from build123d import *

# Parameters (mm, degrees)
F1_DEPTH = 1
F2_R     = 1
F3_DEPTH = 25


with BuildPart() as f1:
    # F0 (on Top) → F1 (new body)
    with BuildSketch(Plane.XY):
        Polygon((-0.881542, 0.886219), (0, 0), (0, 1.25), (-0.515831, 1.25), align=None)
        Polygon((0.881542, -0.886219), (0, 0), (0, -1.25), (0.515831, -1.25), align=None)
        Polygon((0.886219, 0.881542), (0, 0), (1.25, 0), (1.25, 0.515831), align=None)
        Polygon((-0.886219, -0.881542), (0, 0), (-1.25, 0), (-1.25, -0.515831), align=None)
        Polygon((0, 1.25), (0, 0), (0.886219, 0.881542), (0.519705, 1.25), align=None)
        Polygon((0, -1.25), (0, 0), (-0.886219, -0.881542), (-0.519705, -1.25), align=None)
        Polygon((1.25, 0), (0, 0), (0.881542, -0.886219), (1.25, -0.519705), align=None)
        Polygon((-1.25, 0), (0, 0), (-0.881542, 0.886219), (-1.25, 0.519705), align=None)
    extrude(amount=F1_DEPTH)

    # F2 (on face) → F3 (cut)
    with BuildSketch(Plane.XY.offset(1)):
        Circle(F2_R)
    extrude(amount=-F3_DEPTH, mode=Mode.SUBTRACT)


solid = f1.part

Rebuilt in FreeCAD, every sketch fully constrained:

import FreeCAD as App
import Part
import Sketcher
from FreeCAD import Vector
Q = App.Units.Quantity

doc = App.newDocument("Part")
body = doc.addObject("PartDesign::Body", "Body")

sketch1 = body.newObject("Sketcher::SketchObject", "Sketch")
sketch1.AttachmentSupport = (doc.getObject("XY_Plane"), [""])
sketch1.MapMode = "FlatFace"
sketch1.addGeometry([
    Part.LineSegment(Vector(-1.2, -0.5, 0), Vector(-0.9, -0.9, 0)),
    Part.LineSegment(Vector(-0.9, -0.9, 0), Vector(-0.5, -1.2, 0)),
    Part.LineSegment(Vector(-0.5, -1.2, 0), Vector(0.5, -1.2, 0)),
    Part.LineSegment(Vector(0.5, -1.2, 0), Vector(0.9, -0.9, 0)),
    Part.LineSegment(Vector(0.9, -0.9, 0), Vector(1.2, -0.5, 0)),
    Part.LineSegment(Vector(1.2, -0.5, 0), Vector(1.2, 0.5, 0)),
    Part.LineSegment(Vector(1.2, 0.5, 0), Vector(0.9, 0.9, 0)),
    Part.LineSegment(Vector(0.9, 0.9, 0), Vector(0.5, 1.2, 0)),
    Part.LineSegment(Vector(0.5, 1.2, 0), Vector(-0.5, 1.2, 0)),
    Part.LineSegment(Vector(-0.5, 1.2, 0), Vector(-0.9, 0.9, 0)),
    Part.LineSegment(Vector(-0.9, 0.9, 0), Vector(-1.2, 0.5, 0)),
    Part.LineSegment(Vector(-1.2, 0.5, 0), Vector(-1.2, -0.5, 0)),
], False)
sketch1.addConstraint([
    Sketcher.Constraint("Coincident", 0, 2, 1, 1),
    Sketcher.Constraint("Coincident", 1, 2, 2, 1),
    Sketcher.Constraint("Coincident", 2, 2, 3, 1),
    Sketcher.Constraint("Coincident", 3, 2, 4, 1),
    Sketcher.Constraint("Coincident", 4, 2, 5, 1),
    Sketcher.Constraint("Coincident", 5, 2, 6, 1),
    Sketcher.Constraint("Coincident", 6, 2, 7, 1),
    Sketcher.Constraint("Coincident", 7, 2, 8, 1),
    Sketcher.Constraint("Coincident", 8, 2, 9, 1),
    Sketcher.Constraint("Coincident", 9, 2, 10, 1),
    Sketcher.Constraint("Coincident", 10, 2, 11, 1),
    Sketcher.Constraint("Coincident", 11, 2, 0, 1),
    Sketcher.Constraint("Horizontal", 2),
    Sketcher.Constraint("Vertical", 5),
    Sketcher.Constraint("Horizontal", 8),
    Sketcher.Constraint("Vertical", 11),
    Sketcher.Constraint("Symmetric", 0, 2, 6, 2, -1, 1),
    Sketcher.Constraint("Symmetric", 1, 2, 7, 2, -1, 1),
    Sketcher.Constraint("Symmetric", 3, 2, 9, 2, -1, 1),
    Sketcher.Constraint("Symmetric", 4, 2, 10, 2, -1, 1),
    Sketcher.Constraint("Parallel", 0, 1),
    Sketcher.Constraint("Perpendicular", 1, 3),
    Sketcher.Constraint("Parallel", 3, 4),
    Sketcher.Constraint("Perpendicular", 4, 6),
    Sketcher.Constraint("Perpendicular", 7, 9),
    Sketcher.Constraint("Equal", 8, 5),
    Sketcher.Constraint("Equal", 0, 3),
    Sketcher.Constraint("Equal", 1, 4),
    Sketcher.Constraint("DistanceY", 2, 2, 7, 2, Q("2.5 mm")),
    Sketcher.Constraint("Distance", 0, Q("0.515831 mm")),
    Sketcher.Constraint("DistanceX", 2, 1, 2, 2, Q("1.035536 mm")),
    Sketcher.Constraint("DistanceX", 0, 2, -1, 1, Q("0.886219 mm")),
])
pad1 = body.newObject("PartDesign::Pad", "Pad")
pad1.Profile = sketch1
pad1.Length = 1

sketch2 = body.newObject("Sketcher::SketchObject", "Sketch001")
sketch2.AttachmentSupport = (doc.getObject("XY_Plane"), [""])
sketch2.MapMode = "FlatFace"
sketch2.AttachmentOffset = App.Placement(Vector(0, 0, 1), App.Rotation())
sketch2.addGeometry(Part.Circle(Vector(0, 0, 0), Vector(0, 0, 1), 1), False)
sketch2.addConstraint([
    Sketcher.Constraint("Coincident", 0, 3, -1, 1),
    Sketcher.Constraint("Diameter", 0, Q("2 mm")),
])
pocket1 = body.newObject("PartDesign::Pocket", "Pocket")
pocket1.Profile = sketch2
pocket1.Length = 25

doc.recompute()
